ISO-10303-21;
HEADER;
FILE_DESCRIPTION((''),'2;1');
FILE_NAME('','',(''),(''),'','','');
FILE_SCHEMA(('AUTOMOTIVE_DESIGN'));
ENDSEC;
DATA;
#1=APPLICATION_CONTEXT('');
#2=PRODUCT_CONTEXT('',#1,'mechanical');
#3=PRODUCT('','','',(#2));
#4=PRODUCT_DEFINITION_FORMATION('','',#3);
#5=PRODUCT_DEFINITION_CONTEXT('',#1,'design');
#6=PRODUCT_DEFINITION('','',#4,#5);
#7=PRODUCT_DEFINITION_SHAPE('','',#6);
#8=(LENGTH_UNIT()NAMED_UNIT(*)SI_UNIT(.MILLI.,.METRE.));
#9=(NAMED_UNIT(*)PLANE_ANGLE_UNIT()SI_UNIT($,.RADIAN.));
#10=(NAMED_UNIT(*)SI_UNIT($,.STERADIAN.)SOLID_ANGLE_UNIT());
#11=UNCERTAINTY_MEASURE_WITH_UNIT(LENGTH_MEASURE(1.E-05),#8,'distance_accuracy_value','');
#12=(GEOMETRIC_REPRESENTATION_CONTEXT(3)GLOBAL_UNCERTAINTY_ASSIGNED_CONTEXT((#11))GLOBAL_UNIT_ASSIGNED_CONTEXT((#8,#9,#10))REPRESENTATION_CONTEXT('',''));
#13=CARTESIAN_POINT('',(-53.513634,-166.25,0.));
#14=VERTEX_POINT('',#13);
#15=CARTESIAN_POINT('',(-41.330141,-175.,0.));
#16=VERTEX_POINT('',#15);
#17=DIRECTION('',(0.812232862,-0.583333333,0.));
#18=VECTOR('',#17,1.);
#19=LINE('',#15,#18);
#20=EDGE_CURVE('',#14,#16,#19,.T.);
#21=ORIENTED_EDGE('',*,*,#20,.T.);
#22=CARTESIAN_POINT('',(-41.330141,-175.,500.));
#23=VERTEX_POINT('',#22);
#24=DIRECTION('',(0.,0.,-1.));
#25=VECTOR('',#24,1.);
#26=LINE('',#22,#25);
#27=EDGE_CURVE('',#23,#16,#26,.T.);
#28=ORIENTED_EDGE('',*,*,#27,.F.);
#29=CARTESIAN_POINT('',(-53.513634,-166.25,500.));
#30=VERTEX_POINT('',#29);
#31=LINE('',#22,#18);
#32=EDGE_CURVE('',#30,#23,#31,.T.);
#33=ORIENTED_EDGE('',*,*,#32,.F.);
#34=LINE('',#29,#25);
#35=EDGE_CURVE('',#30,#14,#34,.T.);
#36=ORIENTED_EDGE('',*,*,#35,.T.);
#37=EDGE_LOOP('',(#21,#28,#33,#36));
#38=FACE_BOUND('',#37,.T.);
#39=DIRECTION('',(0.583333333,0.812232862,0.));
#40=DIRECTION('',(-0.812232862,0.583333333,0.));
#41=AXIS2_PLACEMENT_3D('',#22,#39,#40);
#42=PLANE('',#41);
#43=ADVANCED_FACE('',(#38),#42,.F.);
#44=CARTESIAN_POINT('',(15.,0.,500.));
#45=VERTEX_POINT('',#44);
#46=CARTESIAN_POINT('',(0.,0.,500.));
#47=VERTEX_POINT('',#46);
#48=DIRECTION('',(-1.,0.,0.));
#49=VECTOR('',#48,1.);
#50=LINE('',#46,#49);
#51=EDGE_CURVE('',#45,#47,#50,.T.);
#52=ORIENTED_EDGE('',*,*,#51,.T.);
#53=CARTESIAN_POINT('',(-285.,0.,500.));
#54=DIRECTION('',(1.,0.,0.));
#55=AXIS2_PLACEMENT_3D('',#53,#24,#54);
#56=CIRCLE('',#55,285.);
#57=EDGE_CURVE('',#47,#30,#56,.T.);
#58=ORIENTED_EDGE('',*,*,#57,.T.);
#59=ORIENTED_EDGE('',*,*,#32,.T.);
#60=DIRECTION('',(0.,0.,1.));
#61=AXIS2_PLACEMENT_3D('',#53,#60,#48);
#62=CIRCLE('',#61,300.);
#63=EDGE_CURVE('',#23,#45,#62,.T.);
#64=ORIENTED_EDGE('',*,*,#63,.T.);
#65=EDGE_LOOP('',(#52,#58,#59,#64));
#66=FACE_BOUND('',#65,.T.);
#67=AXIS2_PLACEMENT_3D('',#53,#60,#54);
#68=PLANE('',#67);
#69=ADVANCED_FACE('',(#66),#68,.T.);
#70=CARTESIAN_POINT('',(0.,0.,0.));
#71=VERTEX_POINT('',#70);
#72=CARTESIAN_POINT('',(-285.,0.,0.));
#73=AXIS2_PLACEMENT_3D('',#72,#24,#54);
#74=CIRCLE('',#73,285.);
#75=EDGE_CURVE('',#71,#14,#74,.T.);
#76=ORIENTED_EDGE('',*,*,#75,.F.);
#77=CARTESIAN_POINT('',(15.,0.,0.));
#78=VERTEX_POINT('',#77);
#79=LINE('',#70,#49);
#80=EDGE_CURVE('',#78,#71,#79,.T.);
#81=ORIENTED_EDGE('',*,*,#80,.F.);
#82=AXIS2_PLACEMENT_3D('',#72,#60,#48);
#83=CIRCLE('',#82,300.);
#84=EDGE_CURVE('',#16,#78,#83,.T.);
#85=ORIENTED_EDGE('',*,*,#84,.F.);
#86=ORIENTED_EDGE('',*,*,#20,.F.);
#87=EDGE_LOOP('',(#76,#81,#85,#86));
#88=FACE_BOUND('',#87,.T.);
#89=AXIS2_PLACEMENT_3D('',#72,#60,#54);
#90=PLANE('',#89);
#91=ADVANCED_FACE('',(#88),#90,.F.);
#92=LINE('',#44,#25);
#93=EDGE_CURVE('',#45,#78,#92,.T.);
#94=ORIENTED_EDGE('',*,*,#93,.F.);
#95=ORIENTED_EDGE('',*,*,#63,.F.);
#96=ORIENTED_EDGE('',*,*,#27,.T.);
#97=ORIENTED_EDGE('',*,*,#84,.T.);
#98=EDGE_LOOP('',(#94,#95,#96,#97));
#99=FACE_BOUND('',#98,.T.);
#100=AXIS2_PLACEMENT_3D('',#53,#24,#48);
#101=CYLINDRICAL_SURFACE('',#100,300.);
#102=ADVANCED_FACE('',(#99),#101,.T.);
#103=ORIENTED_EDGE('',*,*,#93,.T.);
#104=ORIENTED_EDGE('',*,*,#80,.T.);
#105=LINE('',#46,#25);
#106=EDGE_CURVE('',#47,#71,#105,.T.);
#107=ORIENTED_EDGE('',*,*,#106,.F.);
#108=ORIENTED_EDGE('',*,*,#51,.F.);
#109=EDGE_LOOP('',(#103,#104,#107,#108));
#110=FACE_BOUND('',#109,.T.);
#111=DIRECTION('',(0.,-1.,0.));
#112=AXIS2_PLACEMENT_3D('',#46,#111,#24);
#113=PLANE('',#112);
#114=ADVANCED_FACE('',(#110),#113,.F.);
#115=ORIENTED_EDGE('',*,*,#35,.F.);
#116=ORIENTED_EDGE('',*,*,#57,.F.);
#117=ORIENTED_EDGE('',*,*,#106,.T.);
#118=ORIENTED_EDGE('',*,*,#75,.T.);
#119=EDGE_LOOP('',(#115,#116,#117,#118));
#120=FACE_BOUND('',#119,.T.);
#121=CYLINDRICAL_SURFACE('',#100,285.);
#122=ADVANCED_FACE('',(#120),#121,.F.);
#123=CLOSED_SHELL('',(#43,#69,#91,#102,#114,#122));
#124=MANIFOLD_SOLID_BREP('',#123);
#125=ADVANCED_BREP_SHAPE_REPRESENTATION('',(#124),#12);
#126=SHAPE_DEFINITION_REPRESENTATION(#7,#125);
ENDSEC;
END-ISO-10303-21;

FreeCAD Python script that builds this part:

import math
import FreeCAD as App
import Part
import Sketcher
from FreeCAD import Vector

doc = App.newDocument("Part")
body = doc.addObject("PartDesign::Body", "Body")

# Sketch on XY plane
sketch1 = body.newObject("Sketcher::SketchObject", "Sketch")
sketch1.AttachmentSupport = (doc.getObject("XY_Plane"), [""])
sketch1.MapMode = "FlatFace"
sketch1.addGeometry([
    Part.LineSegment(Vector(15, 0, 0), Vector(0, 0, 0)),
    Part.ArcOfCircle(Part.Circle(Vector(-285, 0, 0), Vector(0, 0, 1), 285), math.radians(-36), math.radians(0)),
    Part.LineSegment(Vector(-54, -166, 0), Vector(-41, -175, 0)),
    Part.ArcOfCircle(Part.Circle(Vector(-285, 0, 0), Vector(0, 0, 1), 300), math.radians(-36), math.radians(0)),
], False)
sketch1.addConstraint([
    Sketcher.Constraint("Coincident", 0, 2, 1, 2),
    Sketcher.Constraint("Coincident", 1, 1, 2, 1),
    Sketcher.Constraint("Coincident", 2, 2, 3, 1),
    Sketcher.Constraint("Coincident", 3, 2, 0, 1),
    Sketcher.Constraint("Horizontal", 0),
    Sketcher.Constraint("Coincident", 0, 2, -1, 1),
    Sketcher.Constraint("Coincident", 3, 3, 1, 3),
    Sketcher.Constraint("PointOnObject", 1, 3, -1),
    Sketcher.Constraint("Radius", 1, 285.0),
    Sketcher.Constraint("Radius", 3, 300.0),
    Sketcher.Constraint("DistanceY", 2, 2, -1, 1, 175.0),
    Sketcher.Constraint("DistanceY", 1, 1, -1, 1, 166.25),
])
pad1 = body.newObject("PartDesign::Pad", "Pad")
pad1.Profile = sketch1
pad1.Length = 500

doc.recompute()
